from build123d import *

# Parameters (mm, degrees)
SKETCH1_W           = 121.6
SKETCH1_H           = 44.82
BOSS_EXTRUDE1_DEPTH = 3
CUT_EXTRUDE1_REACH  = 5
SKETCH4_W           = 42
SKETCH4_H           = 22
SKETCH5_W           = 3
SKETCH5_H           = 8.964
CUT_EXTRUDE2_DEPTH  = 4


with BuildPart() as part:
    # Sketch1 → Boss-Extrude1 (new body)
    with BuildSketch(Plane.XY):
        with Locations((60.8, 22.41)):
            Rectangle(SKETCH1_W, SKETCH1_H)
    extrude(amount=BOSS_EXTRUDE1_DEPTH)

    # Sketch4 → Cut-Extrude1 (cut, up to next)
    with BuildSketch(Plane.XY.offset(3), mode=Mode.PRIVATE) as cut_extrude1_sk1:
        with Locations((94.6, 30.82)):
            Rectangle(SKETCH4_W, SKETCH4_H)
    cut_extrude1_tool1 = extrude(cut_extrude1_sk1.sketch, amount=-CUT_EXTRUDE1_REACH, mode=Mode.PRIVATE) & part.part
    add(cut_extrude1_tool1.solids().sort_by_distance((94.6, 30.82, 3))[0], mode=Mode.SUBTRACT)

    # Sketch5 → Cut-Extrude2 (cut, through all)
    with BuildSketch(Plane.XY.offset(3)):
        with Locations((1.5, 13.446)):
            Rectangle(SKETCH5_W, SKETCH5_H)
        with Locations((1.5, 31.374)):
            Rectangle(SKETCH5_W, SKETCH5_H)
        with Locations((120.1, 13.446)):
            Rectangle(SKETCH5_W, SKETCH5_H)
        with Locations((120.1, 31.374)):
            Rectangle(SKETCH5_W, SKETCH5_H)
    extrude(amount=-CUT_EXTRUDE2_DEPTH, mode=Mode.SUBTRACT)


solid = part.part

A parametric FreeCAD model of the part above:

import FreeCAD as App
import Part
import Sketcher
from FreeCAD import Vector
Q = App.Units.Quantity


def add_polygon(sketch, points):
    """Adds a closed chain of lines whose ends are joined by coincident constraints."""
    first, n = sketch.GeometryCount, len(points)
    for a, b in zip(points, points[1:] + points[:1]):
        sketch.addGeometry(Part.LineSegment(App.Vector(*a, 0), App.Vector(*b, 0)), False)
    for i in range(n):
        sketch.addConstraint(Sketcher.Constraint("Coincident", first + i, 2, first + (i + 1) % n, 1))

doc = App.newDocument("Part")
body = doc.addObject("PartDesign::Body", "Body")

# Sketch on XY plane
sketch1 = body.newObject("Sketcher::SketchObject", "Sketch")
sketch1.AttachmentSupport = (doc.getObject("XY_Plane"), [""])
sketch1.MapMode = "FlatFace"
add_polygon(sketch1, [(0, 45), (0, 0), (122, 0), (122, 45)])  # lines 0-3
sketch1.addConstraint([
    Sketcher.Constraint("Vertical", 0),
    Sketcher.Constraint("Horizontal", 1),
    Sketcher.Constraint("Vertical", 2),
    Sketcher.Constraint("Horizontal", 3),
    Sketcher.Constraint("Coincident", 0, 2, -1, 1),
    Sketcher.Constraint("DistanceX", 1, 1, 1, 2, Q("121.6 mm")),
    Sketcher.Constraint("DistanceY", 0, 2, 0, 1, Q("44.82 mm")),
])
pad1 = body.newObject("PartDesign::Pad", "Pad")
pad1.Profile = sketch1
pad1.Length = 3

# Sketch on XY plane
sketch2 = body.newObject("Sketcher::SketchObject", "Sketch001")
sketch2.AttachmentSupport = (doc.getObject("XY_Plane"), [""])
sketch2.MapMode = "FlatFace"
sketch2.AttachmentOffset = App.Placement(Vector(0, 0, 3), App.Rotation())
add_polygon(sketch2, [(74, 42), (74, 20), (116, 20), (116, 42)])  # lines 0-3
sketch2.addConstraint([
    Sketcher.Constraint("Vertical", 0),
    Sketcher.Constraint("Horizontal", 1),
    Sketcher.Constraint("Vertical", 2),
    Sketcher.Constraint("Horizontal", 3),
    Sketcher.Constraint("DistanceX", 1, 1, 1, 2, Q("42 mm")),
    Sketcher.Constraint("DistanceY", 0, 2, 0, 1, Q("22 mm")),
    Sketcher.Constraint("DistanceX", -1, 1, 0, 2, Q("73.6 mm")),
    Sketcher.Constraint("DistanceY", -1, 1, 0, 2, Q("19.82 mm")),
])
pocket1 = body.newObject("PartDesign::Pocket", "Pocket")
pocket1.Profile = sketch2
pocket1.Type = "UpToFirst"

# Sketch on XY plane
sketch3 = body.newObject("Sketcher::SketchObject", "Sketch002")
sketch3.AttachmentSupport = (doc.getObject("XY_Plane"), [""])
sketch3.MapMode = "FlatFace"
sketch3.AttachmentOffset = App.Placement(Vector(0, 0, 3), App.Rotation())
add_polygon(sketch3, [(0, 17.9), (0, 9), (3, 9), (3, 17.9)])  # lines 0-3
add_polygon(sketch3, [(0, 35.9), (0, 26.9), (3, 26.9), (3, 35.9)])  # lines 4-7
add_polygon(sketch3, [(118.6, 17.9), (118.6, 9), (121.6, 9), (121.6, 17.9)])  # lines 8-11
add_polygon(sketch3, [(118.6, 35.9), (118.6, 26.9), (121.6, 26.9), (121.6, 35.9)])  # lines 12-15
sketch3.addConstraint([
    Sketcher.Constraint("Vertical", 0),
    Sketcher.Constraint("Horizontal", 1),
    Sketcher.Constraint("Vertical", 2),
    Sketcher.Constraint("Horizontal", 3),
    Sketcher.Constraint("Vertical", 4),
    Sketcher.Constraint("Horizontal", 5),
    Sketcher.Constraint("Vertical", 6),
    Sketcher.Constraint("Horizontal", 7),
    Sketcher.Constraint("Vertical", 8),
    Sketcher.Constraint("Horizontal", 9),
    Sketcher.Constraint("Vertical", 10),
    Sketcher.Constraint("Horizontal", 11),
    Sketcher.Constraint("Vertical", 12),
    Sketcher.Constraint("Horizontal", 13),
    Sketcher.Constraint("Vertical", 14),
    Sketcher.Constraint("Horizontal", 15),
    Sketcher.Constraint("PointOnObject", 0, 2, -2),
    Sketcher.Constraint("PointOnObject", 4, 2, -2),
    Sketcher.Constraint("Horizontal", 1, 2, 8, 2),
    Sketcher.Constraint("Horizontal", 3, 2, 10, 2),
    Sketcher.Constraint("Horizontal", 5, 2, 12, 2),
    Sketcher.Constraint("Horizontal", 7, 2, 14, 2),
    Sketcher.Constraint("Vertical", 2, 2, 5, 2),
    Sketcher.Constraint("Vertical", 11, 2, 12, 2),
    Sketcher.Constraint("Vertical", 10, 2, 13, 2),
    Sketcher.Constraint("Equal", 7, 9),
    Sketcher.Constraint("Equal", 2, 4),
    Sketcher.Constraint("DistanceX", 1, 1, 1, 2, Q("3 mm")),
    Sketcher.Constraint("DistanceX", -1, 1, 8, 2, Q("118.6 mm")),
    Sketcher.Constraint("DistanceY", 0, 2, 0, 1, Q("8.964 mm")),
    Sketcher.Constraint("DistanceY", -1, 1, 0, 2, Q("8.964 mm")),
    Sketcher.Constraint("DistanceY", -1, 1, 4, 2, Q("26.892 mm")),
])
pocket2 = body.newObject("PartDesign::Pocket", "Pocket001")
pocket2.Profile = sketch3
pocket2.Type = "ThroughAll"

doc.recompute()
